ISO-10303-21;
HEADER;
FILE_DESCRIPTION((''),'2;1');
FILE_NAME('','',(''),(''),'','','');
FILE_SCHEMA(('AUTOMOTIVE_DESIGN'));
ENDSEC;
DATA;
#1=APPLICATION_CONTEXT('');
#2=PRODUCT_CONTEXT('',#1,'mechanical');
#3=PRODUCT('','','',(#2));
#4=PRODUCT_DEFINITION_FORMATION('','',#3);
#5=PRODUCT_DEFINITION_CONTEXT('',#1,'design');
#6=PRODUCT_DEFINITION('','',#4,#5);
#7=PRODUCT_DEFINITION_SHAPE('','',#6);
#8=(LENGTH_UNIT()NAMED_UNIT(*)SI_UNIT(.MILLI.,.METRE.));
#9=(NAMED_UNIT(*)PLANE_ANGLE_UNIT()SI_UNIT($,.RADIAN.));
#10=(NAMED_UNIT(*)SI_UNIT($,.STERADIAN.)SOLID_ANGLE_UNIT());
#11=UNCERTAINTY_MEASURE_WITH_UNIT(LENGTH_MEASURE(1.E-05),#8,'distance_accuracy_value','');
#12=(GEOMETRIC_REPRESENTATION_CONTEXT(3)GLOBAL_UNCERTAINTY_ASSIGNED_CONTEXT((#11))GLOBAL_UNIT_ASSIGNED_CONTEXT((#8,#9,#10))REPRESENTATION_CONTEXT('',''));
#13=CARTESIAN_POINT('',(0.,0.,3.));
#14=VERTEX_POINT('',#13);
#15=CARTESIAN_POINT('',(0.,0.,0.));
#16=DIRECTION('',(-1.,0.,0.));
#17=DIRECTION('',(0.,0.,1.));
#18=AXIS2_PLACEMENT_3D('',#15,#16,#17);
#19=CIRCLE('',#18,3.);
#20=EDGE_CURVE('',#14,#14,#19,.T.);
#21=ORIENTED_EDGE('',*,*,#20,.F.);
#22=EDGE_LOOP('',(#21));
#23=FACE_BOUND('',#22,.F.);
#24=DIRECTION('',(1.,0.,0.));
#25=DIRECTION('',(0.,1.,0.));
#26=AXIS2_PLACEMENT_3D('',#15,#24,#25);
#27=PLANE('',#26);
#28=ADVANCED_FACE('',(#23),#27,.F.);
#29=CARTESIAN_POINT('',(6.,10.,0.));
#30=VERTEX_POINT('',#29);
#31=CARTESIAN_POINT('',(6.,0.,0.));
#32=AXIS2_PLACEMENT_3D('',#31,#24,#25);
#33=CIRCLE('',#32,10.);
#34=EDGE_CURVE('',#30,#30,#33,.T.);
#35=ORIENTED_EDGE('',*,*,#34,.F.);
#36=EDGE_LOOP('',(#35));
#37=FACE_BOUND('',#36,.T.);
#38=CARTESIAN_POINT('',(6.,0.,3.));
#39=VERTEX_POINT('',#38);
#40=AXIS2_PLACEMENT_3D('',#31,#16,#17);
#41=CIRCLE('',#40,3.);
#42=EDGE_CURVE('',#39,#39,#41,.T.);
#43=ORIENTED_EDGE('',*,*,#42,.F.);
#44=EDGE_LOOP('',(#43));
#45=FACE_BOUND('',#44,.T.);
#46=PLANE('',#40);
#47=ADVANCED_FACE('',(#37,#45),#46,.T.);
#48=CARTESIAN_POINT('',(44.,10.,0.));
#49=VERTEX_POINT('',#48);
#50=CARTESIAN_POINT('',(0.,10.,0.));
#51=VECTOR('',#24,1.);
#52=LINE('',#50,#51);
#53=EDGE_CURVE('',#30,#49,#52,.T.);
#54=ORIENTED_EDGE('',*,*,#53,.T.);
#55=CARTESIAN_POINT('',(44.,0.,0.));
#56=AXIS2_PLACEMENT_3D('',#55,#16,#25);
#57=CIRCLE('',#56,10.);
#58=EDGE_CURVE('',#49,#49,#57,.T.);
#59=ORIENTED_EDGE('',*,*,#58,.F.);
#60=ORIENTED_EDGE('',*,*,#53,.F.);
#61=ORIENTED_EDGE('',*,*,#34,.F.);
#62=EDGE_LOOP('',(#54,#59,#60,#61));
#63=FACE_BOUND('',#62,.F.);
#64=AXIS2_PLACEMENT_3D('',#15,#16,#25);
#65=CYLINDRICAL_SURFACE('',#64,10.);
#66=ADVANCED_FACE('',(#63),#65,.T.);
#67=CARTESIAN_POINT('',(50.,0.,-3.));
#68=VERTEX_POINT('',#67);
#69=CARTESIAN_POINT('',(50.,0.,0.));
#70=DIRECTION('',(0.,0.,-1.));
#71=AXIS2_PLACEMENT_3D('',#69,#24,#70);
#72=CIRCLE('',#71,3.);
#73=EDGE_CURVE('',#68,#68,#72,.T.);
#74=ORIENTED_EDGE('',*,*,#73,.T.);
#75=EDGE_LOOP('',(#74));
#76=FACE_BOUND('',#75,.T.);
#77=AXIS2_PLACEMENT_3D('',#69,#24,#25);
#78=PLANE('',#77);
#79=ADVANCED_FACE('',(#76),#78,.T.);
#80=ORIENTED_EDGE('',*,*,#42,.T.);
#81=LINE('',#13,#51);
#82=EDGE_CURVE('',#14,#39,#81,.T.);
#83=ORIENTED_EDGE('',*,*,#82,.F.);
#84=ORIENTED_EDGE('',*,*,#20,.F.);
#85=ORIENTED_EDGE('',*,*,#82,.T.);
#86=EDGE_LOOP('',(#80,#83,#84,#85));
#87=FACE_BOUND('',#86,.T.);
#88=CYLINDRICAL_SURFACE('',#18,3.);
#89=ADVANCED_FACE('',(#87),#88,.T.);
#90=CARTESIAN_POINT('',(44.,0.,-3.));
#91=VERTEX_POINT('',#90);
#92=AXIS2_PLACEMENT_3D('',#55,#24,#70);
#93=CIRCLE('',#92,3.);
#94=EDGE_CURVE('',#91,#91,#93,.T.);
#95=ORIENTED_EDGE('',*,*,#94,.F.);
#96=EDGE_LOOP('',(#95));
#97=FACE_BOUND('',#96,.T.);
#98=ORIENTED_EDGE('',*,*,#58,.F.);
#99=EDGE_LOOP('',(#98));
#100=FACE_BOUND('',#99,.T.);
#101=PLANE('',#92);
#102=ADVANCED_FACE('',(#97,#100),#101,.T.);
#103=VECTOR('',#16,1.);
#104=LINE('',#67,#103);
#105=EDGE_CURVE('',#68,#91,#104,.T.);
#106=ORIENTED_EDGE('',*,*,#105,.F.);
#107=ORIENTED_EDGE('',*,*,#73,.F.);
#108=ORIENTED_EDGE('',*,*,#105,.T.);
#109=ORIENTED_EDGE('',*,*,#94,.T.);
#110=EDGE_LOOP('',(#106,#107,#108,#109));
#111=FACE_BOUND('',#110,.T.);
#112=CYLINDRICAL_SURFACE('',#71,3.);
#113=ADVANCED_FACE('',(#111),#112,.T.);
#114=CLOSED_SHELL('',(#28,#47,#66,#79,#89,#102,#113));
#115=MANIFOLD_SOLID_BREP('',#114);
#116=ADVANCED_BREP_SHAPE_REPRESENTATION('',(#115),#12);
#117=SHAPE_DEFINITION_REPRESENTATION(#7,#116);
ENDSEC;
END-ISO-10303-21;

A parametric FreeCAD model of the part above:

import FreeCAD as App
import Part
import Sketcher

V = App.Vector

doc = App.newDocument("Part")
body = doc.addObject("PartDesign::Body", "Body")

# Sketch on YZ plane
sketch1 = body.newObject("Sketcher::SketchObject", "Sketch")
sketch1.AttachmentSupport = (doc.getObject("YZ_Plane"), [""])
sketch1.MapMode = "FlatFace"
sketch1.addGeometry(Part.Circle(V(0, 0, 0), V(0, 0, 1), 10), False)
sketch1.addConstraint([
    Sketcher.Constraint("Coincident", 0, 3, -1, 1),
    Sketcher.Constraint("Diameter", 0, 20.0),
])
pad1 = body.newObject("PartDesign::Pad", "Pad")
pad1.Profile = sketch1
pad1.Length = 50

# Sketch on YZ plane
sketch2 = body.newObject("Sketcher::SketchObject", "Sketch001")
sketch2.AttachmentSupport = (doc.getObject("YZ_Plane"), [""])
sketch2.MapMode = "FlatFace"
sketch2.AttachmentOffset = App.Placement(V(0, 0, 50), App.Rotation())
sketch2.addGeometry([
    Part.Circle(V(0, 0, 0), V(0, 0, 1), 10),
    Part.Circle(V(0, 0, 0), V(0, 0, 1), 3),
], False)
sketch2.addConstraint([
    Sketcher.Constraint("Coincident", 0, 3, -1, 1),
    Sketcher.Constraint("Coincident", 1, 3, -1, 1),
    Sketcher.Constraint("Diameter", 0, 20.0),
    Sketcher.Constraint("Diameter", 1, 6.0),
])
pocket1 = body.newObject("PartDesign::Pocket", "Pocket")
pocket1.Profile = sketch2
pocket1.Length = 6

# Sketch on YZ plane
sketch3 = body.newObject("Sketcher::SketchObject", "Sketch002")
sketch3.AttachmentSupport = (doc.getObject("YZ_Plane"), [""])
sketch3.MapMode = "FlatFace"
sketch3.addGeometry([
    Part.Circle(V(0, 0, 0), V(0, 0, 1), 10),
    Part.Circle(V(0, 0, 0), V(0, 0, 1), 3),
], False)
sketch3.addConstraint([
    Sketcher.Constraint("Coincident", 0, 3, -1, 1),
    Sketcher.Constraint("Coincident", 1, 3, -1, 1),
    Sketcher.Constraint("Diameter", 0, 20.0),
    Sketcher.Constraint("Diameter", 1, 6.0),
])
pocket2 = body.newObject("PartDesign::Pocket", "Pocket001")
pocket2.Profile = sketch3
pocket2.Length = 6
pocket2.Reversed = True

doc.recompute()
